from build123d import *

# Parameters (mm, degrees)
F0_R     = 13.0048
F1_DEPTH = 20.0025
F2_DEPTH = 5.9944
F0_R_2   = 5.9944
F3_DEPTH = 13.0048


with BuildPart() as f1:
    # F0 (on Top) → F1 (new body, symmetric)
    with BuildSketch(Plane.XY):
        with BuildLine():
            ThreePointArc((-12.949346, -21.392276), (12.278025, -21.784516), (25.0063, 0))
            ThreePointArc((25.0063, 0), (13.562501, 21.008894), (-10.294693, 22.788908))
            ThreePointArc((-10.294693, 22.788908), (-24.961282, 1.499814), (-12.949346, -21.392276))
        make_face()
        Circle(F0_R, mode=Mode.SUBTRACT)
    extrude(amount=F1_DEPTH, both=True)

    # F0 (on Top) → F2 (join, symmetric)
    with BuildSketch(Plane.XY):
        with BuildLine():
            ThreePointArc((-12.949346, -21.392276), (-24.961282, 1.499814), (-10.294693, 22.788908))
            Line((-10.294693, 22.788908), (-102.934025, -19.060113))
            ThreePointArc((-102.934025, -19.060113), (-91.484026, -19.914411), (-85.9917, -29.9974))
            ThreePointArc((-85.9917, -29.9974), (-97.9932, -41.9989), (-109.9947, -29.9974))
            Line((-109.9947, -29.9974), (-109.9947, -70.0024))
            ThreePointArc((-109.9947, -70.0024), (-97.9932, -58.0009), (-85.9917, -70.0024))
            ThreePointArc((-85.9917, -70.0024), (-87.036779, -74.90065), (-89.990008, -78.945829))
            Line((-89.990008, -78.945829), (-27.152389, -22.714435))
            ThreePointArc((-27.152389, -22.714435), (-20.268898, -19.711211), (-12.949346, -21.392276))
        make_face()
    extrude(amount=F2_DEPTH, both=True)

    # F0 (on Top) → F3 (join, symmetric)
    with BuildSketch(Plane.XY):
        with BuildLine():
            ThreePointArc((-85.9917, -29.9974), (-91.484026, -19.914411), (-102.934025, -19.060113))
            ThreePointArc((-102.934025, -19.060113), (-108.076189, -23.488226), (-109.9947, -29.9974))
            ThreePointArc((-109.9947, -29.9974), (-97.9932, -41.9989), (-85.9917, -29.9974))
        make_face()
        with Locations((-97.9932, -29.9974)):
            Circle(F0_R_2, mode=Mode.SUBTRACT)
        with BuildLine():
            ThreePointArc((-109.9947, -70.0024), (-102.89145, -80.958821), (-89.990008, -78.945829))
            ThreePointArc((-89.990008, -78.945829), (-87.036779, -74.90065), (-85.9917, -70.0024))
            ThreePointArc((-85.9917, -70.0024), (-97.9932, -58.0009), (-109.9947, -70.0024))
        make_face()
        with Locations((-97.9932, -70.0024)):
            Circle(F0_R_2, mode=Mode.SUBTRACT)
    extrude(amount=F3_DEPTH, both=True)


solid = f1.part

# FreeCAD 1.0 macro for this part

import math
import FreeCAD as App
import Part
import Sketcher

V = App.Vector
Q = App.Units.Quantity

doc = App.newDocument("Part")
params = doc.addObject("Spreadsheet::Sheet", "Params")
for row, (alias, value) in enumerate([
    ("sketch1_diameter", "1.024 in"),
    ("pad1_length", "1.575 in"),
    ("sketch2_radius", "0.472 in"),
    ("sketch2_height", "1.575 in"),
    ("pad2_length", "0.472 in"),
    ("sketch3_diameter", "0.472 in"),
    ("pad3_length", "1.024 in"),
], start=1):
    params.set(f"A{row}", alias)
    params.set(f"B{row}", "=" + value)
    params.setAlias(f"B{row}", alias)

body = doc.addObject("PartDesign::Body", "Body")

# Sketch on XY plane
sketch1 = body.newObject("Sketcher::SketchObject", "Sketch")
sketch1.AttachmentSupport = (doc.getObject("XY_Plane"), [""])
sketch1.MapMode = "FlatFace"
sketch1.addGeometry([
    Part.ArcOfCircle(Part.Circle(V(0, 0, 0), V(0, 0, 1), 25), math.radians(-121), math.radians(0)),
    Part.ArcOfCircle(Part.Circle(V(0, 0, 0), V(0, 0, 1), 25), math.radians(0), math.radians(114)),
    Part.ArcOfCircle(Part.Circle(V(0, 0, 0), V(0, 0, 1), 25), math.radians(114), math.radians(239)),
    Part.Circle(V(0, 0, 0), V(0, 0, 1), 13),
], False)
sketch1.addConstraint([
    Sketcher.Constraint("Tangent", 0, 2, 1, 1),
    Sketcher.Constraint("Tangent", 1, 2, 2, 1),
    Sketcher.Constraint("Tangent", 2, 2, 0, 1),
    Sketcher.Constraint("Coincident", 0, 3, -1, 1),
    Sketcher.Constraint("Coincident", 3, 3, -1, 1),
    Sketcher.Constraint("PointOnObject", 0, 2, -1),
    Sketcher.Constraint("Diameter", 3, Q("1.024 in")),
    Sketcher.Constraint("Radius", 0, Q("0.9845 in")),
    Sketcher.Constraint("DistanceY", -1, 1, 1, 2, 22.788908),
    Sketcher.Constraint("DistanceX", 2, 2, -1, 1, 12.949346),
])
sketch1.setExpression("Constraints[6]", "Params.sketch1_diameter")
pad1 = body.newObject("PartDesign::Pad", "Pad")
pad1.Profile = sketch1
pad1.setExpression("Length", "Params.pad1_length")
pad1.Midplane = True

# Sketch on XY plane
sketch2 = body.newObject("Sketcher::SketchObject", "Sketch001")
sketch2.AttachmentSupport = (doc.getObject("XY_Plane"), [""])
sketch2.MapMode = "FlatFace"
sketch2.addGeometry([
    Part.ArcOfCircle(Part.Circle(V(0, 0, 0), V(0, 0, 1), 25), math.radians(114), math.radians(239)),  # 0
    Part.LineSegment(V(-10, 23, 0), V(-103, -19, 0)),  # 1
    Part.ArcOfCircle(Part.Circle(V(-98, -30, 0), V(0, 0, 1), 12), math.radians(0), math.radians(114)),  # 2
    Part.ArcOfCircle(Part.Circle(V(-98, -30, 0), V(0, 0, 1), 12), math.radians(180), math.radians(360)),  # 3
    Part.LineSegment(V(-110, -30, 0), V(-110, -70, 0)),  # 4
    Part.ArcOfCircle(Part.Circle(V(-98, -70, 0), V(0, 0, 1), 12), math.radians(0), math.radians(180)),  # 5
    Part.ArcOfCircle(Part.Circle(V(-98, -70, 0), V(0, 0, 1), 12), math.radians(-48), math.radians(0)),  # 6
    Part.LineSegment(V(-90, -79, 0), V(-27, -23, 0)),  # 7
    Part.ArcOfCircle(Part.Circle(V(-19, -32, 0), V(0, 0, 1), 12), math.radians(59), math.radians(132)),  # 8
], False)
sketch2.addConstraint([
    Sketcher.Constraint("Tangent", 0, 1, 1, 1),
    Sketcher.Constraint("Tangent", 1, 2, 2, 2),
    Sketcher.Constraint("Tangent", 2, 1, 3, 2),
    Sketcher.Constraint("Tangent", 3, 1, 4, 1),
    Sketcher.Constraint("Tangent", 4, 2, 5, 2),
    Sketcher.Constraint("Tangent", 5, 1, 6, 2),
    Sketcher.Constraint("Tangent", 6, 1, 7, 1),
    Sketcher.Constraint("Tangent", 7, 2, 8, 2),
    Sketcher.Constraint("Tangent", 8, 1, 0, 2),
    Sketcher.Constraint("Vertical", 4),
    Sketcher.Constraint("Coincident", 0, 3, -1, 1),
    Sketcher.Constraint("Equal", 2, 3),
    Sketcher.Constraint("Equal", 3, 5),
    Sketcher.Constraint("Horizontal", 3, 3, 2, 1),
    Sketcher.Constraint("Horizontal", 4, 2, 5, 1),
    Sketcher.Constraint("Radius", 8, Q("0.472 in")),
    Sketcher.Constraint("Radius", 0, Q("0.9845 in")),
    Sketcher.Constraint("Radius", 2, Q("0.4725 in")),
    Sketcher.Constraint("Radius", 6, Q("0.4724998 in")),
    Sketcher.Constraint("DistanceY", 4, 2, 4, 1, Q("1.575 in")),
    Sketcher.Constraint("DistanceY", 6, 3, 8, 3, Q("1.5100001 in")),
    Sketcher.Constraint("DistanceX", 2, 3, -1, 1, Q("3.858 in")),
    Sketcher.Constraint("DistanceY", 2, 3, -1, 1, Q("1.181 in")),
])
sketch2.setExpression("Constraints[15]", "Params.sketch2_radius")
sketch2.setExpression("Constraints[19]", "Params.sketch2_height")
pad2 = body.newObject("PartDesign::Pad", "Pad001")
pad2.Profile = sketch2
pad2.setExpression("Length", "Params.pad2_length")
pad2.Midplane = True

# Sketch on XY plane
sketch3 = body.newObject("Sketcher::SketchObject", "Sketch002")
sketch3.AttachmentSupport = (doc.getObject("XY_Plane"), [""])
sketch3.MapMode = "FlatFace"
sketch3.addGeometry([
    Part.ArcOfCircle(Part.Circle(V(-98, -30, 0), V(0, 0, 1), 12), math.radians(0), math.radians(114)),  # 0
    Part.ArcOfCircle(Part.Circle(V(-98, -30, 0), V(0, 0, 1), 12), math.radians(114), math.radians(180)),  # 1
    Part.ArcOfCircle(Part.Circle(V(-98, -30, 0), V(0, 0, 1), 12), math.radians(180), math.radians(360)),  # 2
    Part.Circle(V(-98, -30, 0), V(0, 0, 1), 6),  # 3
    Part.ArcOfCircle(Part.Circle(V(-98, -70, 0), V(0, 0, 1), 12), math.radians(180), math.radians(312)),  # 4
    Part.ArcOfCircle(Part.Circle(V(-98, -70, 0), V(0, 0, 1), 12), math.radians(-48), math.radians(0)),  # 5
    Part.ArcOfCircle(Part.Circle(V(-98, -70, 0), V(0, 0, 1), 12), math.radians(0), math.radians(180)),  # 6
    Part.Circle(V(-98, -70, 0), V(0, 0, 1), 6),  # 7
], False)
sketch3.addConstraint([
    Sketcher.Constraint("Tangent", 0, 2, 1, 1),
    Sketcher.Constraint("Tangent", 1, 2, 2, 1),
    Sketcher.Constraint("Tangent", 2, 2, 0, 1),
    Sketcher.Constraint("Tangent", 4, 2, 5, 1),
    Sketcher.Constraint("Tangent", 5, 2, 6, 1),
    Sketcher.Constraint("Tangent", 6, 2, 4, 1),
    Sketcher.Constraint("Coincident", 3, 3, 0, 3),
    Sketcher.Constraint("Coincident", 7, 3, 4, 3),
    Sketcher.Constraint("Equal", 2, 4),
    Sketcher.Constraint("Equal", 3, 7),
    Sketcher.Constraint("Horizontal", 3, 3, 1, 2),
    Sketcher.Constraint("Horizontal", 1, 2, 2, 2),
    Sketcher.Constraint("Horizontal", 7, 3, 5, 2),
    Sketcher.Constraint("Horizontal", 5, 2, 6, 2),
    Sketcher.Constraint("Vertical", 3, 3, 4, 3),
    Sketcher.Constraint("Diameter", 3, Q("0.472 in")),
    Sketcher.Constraint("Radius", 0, Q("0.4725 in")),
    Sketcher.Constraint("DistanceX", 0, 3, -1, 1, Q("3.858 in")),
    Sketcher.Constraint("DistanceY", 0, 3, -1, 1, Q("1.181 in")),
    Sketcher.Constraint("DistanceY", 4, 3, -1, 1, Q("2.756 in")),
    Sketcher.Constraint("DistanceY", 4, 2, -1, 1, 78.945829),
    Sketcher.Constraint("DistanceX", 0, 2, -1, 1, 102.934025),
])
sketch3.setExpression("Constraints[15]", "Params.sketch3_diameter")
pad3 = body.newObject("PartDesign::Pad", "Pad002")
pad3.Profile = sketch3
pad3.setExpression("Length", "Params.pad3_length")
pad3.Midplane = True

doc.recompute()
